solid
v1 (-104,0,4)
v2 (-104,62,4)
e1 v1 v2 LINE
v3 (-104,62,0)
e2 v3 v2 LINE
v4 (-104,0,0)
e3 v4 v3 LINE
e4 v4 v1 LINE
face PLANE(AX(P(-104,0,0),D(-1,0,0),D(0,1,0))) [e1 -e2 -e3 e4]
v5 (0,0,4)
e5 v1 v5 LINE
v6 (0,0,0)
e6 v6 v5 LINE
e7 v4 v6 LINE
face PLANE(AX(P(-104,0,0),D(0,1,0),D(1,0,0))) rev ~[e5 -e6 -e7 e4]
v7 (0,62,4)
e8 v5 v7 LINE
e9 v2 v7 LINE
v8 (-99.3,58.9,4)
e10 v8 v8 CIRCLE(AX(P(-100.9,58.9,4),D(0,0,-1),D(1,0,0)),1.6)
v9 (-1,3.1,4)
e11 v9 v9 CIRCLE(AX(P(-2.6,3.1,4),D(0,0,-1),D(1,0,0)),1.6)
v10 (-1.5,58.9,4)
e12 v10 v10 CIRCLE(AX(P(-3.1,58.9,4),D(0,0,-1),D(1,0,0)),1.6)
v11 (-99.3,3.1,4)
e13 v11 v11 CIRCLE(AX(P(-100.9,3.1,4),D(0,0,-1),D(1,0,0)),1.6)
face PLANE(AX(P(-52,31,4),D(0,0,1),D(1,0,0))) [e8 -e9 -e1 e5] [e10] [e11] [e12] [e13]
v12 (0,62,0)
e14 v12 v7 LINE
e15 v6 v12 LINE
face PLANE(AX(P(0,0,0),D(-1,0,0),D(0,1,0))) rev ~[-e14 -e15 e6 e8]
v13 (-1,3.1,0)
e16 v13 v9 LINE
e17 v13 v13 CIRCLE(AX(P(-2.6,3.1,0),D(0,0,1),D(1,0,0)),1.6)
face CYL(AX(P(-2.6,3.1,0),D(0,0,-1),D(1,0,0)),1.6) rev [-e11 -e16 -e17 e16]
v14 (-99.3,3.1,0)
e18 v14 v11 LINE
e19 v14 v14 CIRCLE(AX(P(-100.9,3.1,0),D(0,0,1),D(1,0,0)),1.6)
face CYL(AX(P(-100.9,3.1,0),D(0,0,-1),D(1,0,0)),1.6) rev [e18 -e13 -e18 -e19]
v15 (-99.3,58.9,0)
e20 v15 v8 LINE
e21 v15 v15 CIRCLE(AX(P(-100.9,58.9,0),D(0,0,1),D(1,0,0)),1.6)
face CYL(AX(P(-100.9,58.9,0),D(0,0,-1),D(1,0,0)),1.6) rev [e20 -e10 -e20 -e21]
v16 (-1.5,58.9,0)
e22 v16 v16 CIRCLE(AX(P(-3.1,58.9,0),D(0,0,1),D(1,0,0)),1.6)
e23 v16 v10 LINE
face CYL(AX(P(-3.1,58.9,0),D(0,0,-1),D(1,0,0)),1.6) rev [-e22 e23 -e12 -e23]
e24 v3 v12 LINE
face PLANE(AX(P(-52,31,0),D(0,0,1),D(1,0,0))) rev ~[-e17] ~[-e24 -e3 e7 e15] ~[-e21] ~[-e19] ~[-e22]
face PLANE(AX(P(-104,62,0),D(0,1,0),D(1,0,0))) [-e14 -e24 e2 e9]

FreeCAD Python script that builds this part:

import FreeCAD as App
import Part
import Sketcher

doc = App.newDocument("Part")
body = doc.addObject("PartDesign::Body", "Body")

# Sketch on XY plane
sketch1 = body.newObject("Sketcher::SketchObject", "Sketch")
sketch1.AttachmentSupport = (doc.getObject("XY_Plane"), [""])
sketch1.MapMode = "FlatFace"
sketch1.addGeometry(Part.Circle(App.Vector(-3.1, 58.9, 0), App.Vector(0, 0, 1), 1.6), False)
sketch1.addConstraint([
    Sketcher.Constraint("Diameter", 0, 3.2),
    Sketcher.Constraint("DistanceX", 0, 3, -1, 1, 3.1),
    Sketcher.Constraint("DistanceY", -1, 1, 0, 3, 58.9),
])
pad1 = body.newObject("PartDesign::Pad", "Pad")
pad1.Profile = sketch1
pad1.Length = 10
body2 = doc.addObject("PartDesign::Body", "Body001")

# Sketch on XY plane
sketch2 = body2.newObject("Sketcher::SketchObject", "Sketch001")
sketch2.AttachmentSupport = (doc.getObject("XY_Plane001"), [""])
sketch2.MapMode = "FlatFace"
sketch2.addGeometry(Part.Circle(App.Vector(-100.9, 58.9, 0), App.Vector(0, 0, 1), 1.6), False)
sketch2.addConstraint([
    Sketcher.Constraint("Diameter", 0, 3.2),
    Sketcher.Constraint("DistanceX", 0, 3, -1, 1, 100.9),
    Sketcher.Constraint("DistanceY", -1, 1, 0, 3, 58.9),
])
pad2 = body2.newObject("PartDesign::Pad", "Pad001")
pad2.Profile = sketch2
pad2.Length = 10
body3 = doc.addObject("PartDesign::Body", "Body002")

# Sketch on XY plane
sketch3 = body3.newObject("Sketcher::SketchObject", "Sketch002")
sketch3.AttachmentSupport = (doc.getObject("XY_Plane002"), [""])
sketch3.MapMode = "FlatFace"
sketch3.addGeometry(Part.Circle(App.Vector(-100.9, 3.1, 0), App.Vector(0, 0, 1), 1.6), False)
sketch3.addConstraint([
    Sketcher.Constraint("Diameter", 0, 3.2),
    Sketcher.Constraint("DistanceX", 0, 3, -1, 1, 100.9),
    Sketcher.Constraint("DistanceY", -1, 1, 0, 3, 3.1),
])
pad3 = body3.newObject("PartDesign::Pad", "Pad002")
pad3.Profile = sketch3
pad3.Length = 10
body4 = doc.addObject("PartDesign::Body", "Body003")

# Sketch on XY plane
sketch4 = body4.newObject("Sketcher::SketchObject", "Sketch003")
sketch4.AttachmentSupport = (doc.getObject("XY_Plane003"), [""])
sketch4.MapMode = "FlatFace"
sketch4.addGeometry(Part.Circle(App.Vector(-2.6, 3.1, 0), App.Vector(0, 0, 1), 1.6), False)
sketch4.addConstraint([
    Sketcher.Constraint("Diameter", 0, 3.2),
    Sketcher.Constraint("DistanceX", 0, 3, -1, 1, 2.6),
    Sketcher.Constraint("DistanceY", -1, 1, 0, 3, 3.1),
])
pad4 = body4.newObject("PartDesign::Pad", "Pad003")
pad4.Profile = sketch4
pad4.Length = 10
body5 = doc.addObject("PartDesign::Body", "Body004")

# Sketch on XY plane
sketch5 = body5.newObject("Sketcher::SketchObject", "Sketch004")
sketch5.AttachmentSupport = (doc.getObject("XY_Plane004"), [""])
sketch5.MapMode = "FlatFace"
sketch5.addGeometry([
    Part.LineSegment(App.Vector(-104, 62, 0), App.Vector(-104, 0, 0)),
    Part.LineSegment(App.Vector(-104, 0, 0), App.Vector(0, 0, 0)),
    Part.LineSegment(App.Vector(0, 0, 0), App.Vector(0, 62, 0)),
    Part.LineSegment(App.Vector(0, 62, 0), App.Vector(-104, 62, 0)),
], False)
sketch5.addConstraint([
    Sketcher.Constraint("Coincident", 0, 2, 1, 1),
    Sketcher.Constraint("Coincident", 1, 2, 2, 1),
    Sketcher.Constraint("Coincident", 2, 2, 3, 1),
    Sketcher.Constraint("Coincident", 3, 2, 0, 1),
    Sketcher.Constraint("Vertical", 0),
    Sketcher.Constraint("Horizontal", 1),
    Sketcher.Constraint("Vertical", 2),
    Sketcher.Constraint("Horizontal", 3),
    Sketcher.Constraint("Coincident", 1, 2, -1, 1),
    Sketcher.Constraint("DistanceX", 1, 1, 1, 2, 104.0),
    Sketcher.Constraint("DistanceY", 0, 2, 0, 1, 62.0),
])
pad5 = body5.newObject("PartDesign::Pad", "Pad004")
pad5.Profile = sketch5
pad5.Length = 4
doc.recompute()

boolean = body5.newObject("PartDesign::Boolean", "Boolean")
boolean.Type = "Cut"
boolean.addObjects([body4])
doc.recompute()

boolean2 = body5.newObject("PartDesign::Boolean", "Boolean001")
boolean2.Type = "Cut"
boolean2.addObjects([body3])
doc.recompute()

boolean3 = body5.newObject("PartDesign::Boolean", "Boolean002")
boolean3.Type = "Cut"
boolean3.addObjects([body2])
doc.recompute()

boolean4 = body5.newObject("PartDesign::Boolean", "Boolean003")
boolean4.Type = "Cut"
boolean4.addObjects([body])

doc.recompute()
